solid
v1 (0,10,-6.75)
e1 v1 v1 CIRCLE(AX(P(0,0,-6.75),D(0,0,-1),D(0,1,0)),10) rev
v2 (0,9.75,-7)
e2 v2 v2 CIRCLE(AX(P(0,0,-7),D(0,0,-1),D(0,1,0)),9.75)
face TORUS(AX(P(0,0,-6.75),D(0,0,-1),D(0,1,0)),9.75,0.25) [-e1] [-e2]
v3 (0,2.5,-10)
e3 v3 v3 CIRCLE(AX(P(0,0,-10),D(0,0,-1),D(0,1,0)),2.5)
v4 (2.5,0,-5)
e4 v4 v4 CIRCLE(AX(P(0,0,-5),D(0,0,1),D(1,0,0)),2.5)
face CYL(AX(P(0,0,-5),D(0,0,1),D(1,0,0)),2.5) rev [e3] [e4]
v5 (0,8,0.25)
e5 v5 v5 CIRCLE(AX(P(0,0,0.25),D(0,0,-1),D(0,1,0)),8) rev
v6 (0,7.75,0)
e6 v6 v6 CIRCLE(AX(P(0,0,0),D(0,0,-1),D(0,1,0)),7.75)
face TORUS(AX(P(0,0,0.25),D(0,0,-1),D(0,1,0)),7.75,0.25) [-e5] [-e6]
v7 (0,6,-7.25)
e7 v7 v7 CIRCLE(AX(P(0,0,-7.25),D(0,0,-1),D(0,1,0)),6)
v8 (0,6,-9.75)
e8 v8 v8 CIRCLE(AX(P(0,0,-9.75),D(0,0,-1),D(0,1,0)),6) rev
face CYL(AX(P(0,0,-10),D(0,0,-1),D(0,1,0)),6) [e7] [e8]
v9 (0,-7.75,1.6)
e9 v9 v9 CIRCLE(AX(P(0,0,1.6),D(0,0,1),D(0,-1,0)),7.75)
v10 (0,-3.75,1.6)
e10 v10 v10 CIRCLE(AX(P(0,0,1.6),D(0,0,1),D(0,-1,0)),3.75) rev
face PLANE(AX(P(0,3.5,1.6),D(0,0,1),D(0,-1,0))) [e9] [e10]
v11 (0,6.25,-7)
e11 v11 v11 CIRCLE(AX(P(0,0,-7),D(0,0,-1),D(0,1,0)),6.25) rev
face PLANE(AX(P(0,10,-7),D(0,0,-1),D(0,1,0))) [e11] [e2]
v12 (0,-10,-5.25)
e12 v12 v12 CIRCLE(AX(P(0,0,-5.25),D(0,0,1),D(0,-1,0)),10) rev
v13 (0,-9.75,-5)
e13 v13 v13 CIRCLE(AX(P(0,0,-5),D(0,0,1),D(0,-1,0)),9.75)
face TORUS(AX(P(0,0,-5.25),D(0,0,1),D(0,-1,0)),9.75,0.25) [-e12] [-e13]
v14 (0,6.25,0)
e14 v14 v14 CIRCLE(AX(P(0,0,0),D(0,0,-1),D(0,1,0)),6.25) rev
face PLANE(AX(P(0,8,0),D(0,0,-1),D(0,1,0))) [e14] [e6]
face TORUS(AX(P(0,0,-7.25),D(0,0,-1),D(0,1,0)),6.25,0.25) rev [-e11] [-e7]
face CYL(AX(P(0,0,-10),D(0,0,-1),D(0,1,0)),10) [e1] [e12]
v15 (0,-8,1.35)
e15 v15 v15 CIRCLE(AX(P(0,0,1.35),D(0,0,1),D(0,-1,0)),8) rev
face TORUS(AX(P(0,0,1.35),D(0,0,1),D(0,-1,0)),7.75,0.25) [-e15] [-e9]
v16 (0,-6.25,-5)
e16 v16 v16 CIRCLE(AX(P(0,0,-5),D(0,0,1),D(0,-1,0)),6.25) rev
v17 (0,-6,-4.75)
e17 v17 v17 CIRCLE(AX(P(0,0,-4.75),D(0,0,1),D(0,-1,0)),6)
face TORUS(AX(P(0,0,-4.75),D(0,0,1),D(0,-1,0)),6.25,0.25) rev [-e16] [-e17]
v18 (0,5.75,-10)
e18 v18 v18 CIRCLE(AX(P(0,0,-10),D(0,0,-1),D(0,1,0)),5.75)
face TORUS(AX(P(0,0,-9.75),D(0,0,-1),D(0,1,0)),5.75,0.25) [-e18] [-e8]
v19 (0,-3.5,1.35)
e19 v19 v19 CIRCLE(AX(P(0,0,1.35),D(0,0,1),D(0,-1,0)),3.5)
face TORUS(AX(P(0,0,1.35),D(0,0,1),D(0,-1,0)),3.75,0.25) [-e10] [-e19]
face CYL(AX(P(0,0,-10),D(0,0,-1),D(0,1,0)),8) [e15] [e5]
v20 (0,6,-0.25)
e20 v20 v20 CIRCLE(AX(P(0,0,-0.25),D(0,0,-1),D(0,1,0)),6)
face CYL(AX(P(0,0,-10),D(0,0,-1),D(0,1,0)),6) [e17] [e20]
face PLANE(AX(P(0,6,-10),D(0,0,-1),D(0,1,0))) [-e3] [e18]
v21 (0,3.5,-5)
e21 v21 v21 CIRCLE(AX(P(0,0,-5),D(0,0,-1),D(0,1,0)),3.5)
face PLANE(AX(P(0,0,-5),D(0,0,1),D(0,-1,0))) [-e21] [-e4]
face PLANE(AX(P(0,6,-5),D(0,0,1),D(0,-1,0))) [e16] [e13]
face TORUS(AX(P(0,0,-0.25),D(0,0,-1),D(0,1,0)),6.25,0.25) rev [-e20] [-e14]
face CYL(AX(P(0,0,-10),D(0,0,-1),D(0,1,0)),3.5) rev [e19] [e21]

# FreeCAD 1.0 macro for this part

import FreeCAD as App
import Part
import Sketcher

V = App.Vector
Q = App.Units.Quantity


def edges_at(feature, points):
    """Names of the edges that pass closest to the given points."""
    edges = feature.Shape.Edges
    near = lambda p: min(range(len(edges)), key=lambda i: edges[i].distToShape(Part.Vertex(*p))[0])
    return sorted({f"Edge{near(p) + 1}" for p in points})


def add_polygon(sketch, points):
    """Adds a closed chain of lines whose ends are joined by coincident constraints."""
    first, n = sketch.GeometryCount, len(points)
    for a, b in zip(points, points[1:] + points[:1]):
        sketch.addGeometry(Part.LineSegment(App.Vector(*a, 0), App.Vector(*b, 0)), False)
    for i in range(n):
        sketch.addConstraint(Sketcher.Constraint("Coincident", first + i, 2, first + (i + 1) % n, 1))

doc = App.newDocument("Part")
params = doc.addObject("Spreadsheet::Sheet", "Params")
for row, (alias, value) in enumerate([
    ("sketch1_width", "2 mm"),
    ("sketch1_width2", "6 mm"),
    ("sketch1_width3", "4 mm"),
    ("sketch1_height", "5 mm"),
    ("sketch1_width4", "4.5 mm"),
    ("revolution_angle", "360 deg"),
    ("sketch2_diameter", "5 mm"),
    ("hole_diameter", "5 mm"),
    ("fillet_radius", "0.25 mm"),
], start=1):
    params.set(f"A{row}", alias)
    params.set(f"B{row}", "=" + value)
    params.setAlias(f"B{row}", alias)

body = doc.addObject("PartDesign::Body", "Body")

# Sketch on YZ plane
sketch1 = body.newObject("Sketcher::SketchObject", "Sketch")
sketch1.AttachmentSupport = (doc.getObject("YZ_Plane"), [""])
sketch1.MapMode = "FlatFace"
add_polygon(sketch1, [(6, 0), (8, 0), (8, 1.6), (3.5, 1.6), (3.5, -5), (0, -5), (0, -10), (6, -10), (6, -7), (10, -7), (10, -5), (6, -5)])  # lines 0-11
sketch1.addConstraint(Sketcher.Constraint("Horizontal", 0))
sketch1.addConstraint(Sketcher.Constraint("Vertical", 1))
sketch1.addConstraint(Sketcher.Constraint("Horizontal", 2))
sketch1.addConstraint(Sketcher.Constraint("Vertical", 3))
sketch1.addConstraint(Sketcher.Constraint("Horizontal", 4))
sketch1.addConstraint(Sketcher.Constraint("Vertical", 5))
sketch1.addConstraint(Sketcher.Constraint("Horizontal", 6))
sketch1.addConstraint(Sketcher.Constraint("Vertical", 7))
sketch1.addConstraint(Sketcher.Constraint("Horizontal", 8))
sketch1.addConstraint(Sketcher.Constraint("Vertical", 9))
sketch1.addConstraint(Sketcher.Constraint("Horizontal", 10))
sketch1.addConstraint(Sketcher.Constraint("Vertical", 11))
sketch1.addConstraint(Sketcher.Constraint("PointOnObject", 0, 2, -1))
sketch1.addConstraint(Sketcher.Constraint("PointOnObject", 4, 2, -2))
sketch1.addConstraint(Sketcher.Constraint("Horizontal", 4, 2, 9, 2))
sketch1.addConstraint(Sketcher.Constraint("Vertical", 7, 2, 10, 2))
sketch1.addConstraint(Sketcher.Constraint("Equal", 0, 9))
sketch1.addConstraint(Sketcher.Constraint("Equal", 5, 11))
sketch1.addConstraint(Sketcher.Constraint("DistanceX", 0, 1, 0, 2, Q("2 mm")))
sketch1.addConstraint(Sketcher.Constraint("DistanceX", 6, 1, 6, 2, Q("6 mm")))
sketch1.addConstraint(Sketcher.Constraint("DistanceX", 8, 1, 8, 2, Q("4 mm")))
sketch1.addConstraint(Sketcher.Constraint("DistanceY", 5, 2, 5, 1, Q("5 mm")))
sketch1.addConstraint(Sketcher.Constraint("DistanceX", 2, 2, 2, 1, Q("4.5 mm")))
sketch1.addConstraint(Sketcher.Constraint("DistanceY", 1, 1, 1, 2, Q("1.6 mm")))
sketch1.setExpression("Constraints[30]", "Params.sketch1_width")
sketch1.setExpression("Constraints[31]", "Params.sketch1_width2")
sketch1.setExpression("Constraints[32]", "Params.sketch1_width3")
sketch1.setExpression("Constraints[33]", "Params.sketch1_height")
sketch1.setExpression("Constraints[34]", "Params.sketch1_width4")
revolution = body.newObject("PartDesign::Revolution", "Revolution")
revolution.Profile = sketch1
revolution.ReferenceAxis = (sketch1, ["V_Axis"])
revolution.setExpression("Angle", "Params.revolution_angle")

# Sketch on XY plane
sketch2 = body.newObject("Sketcher::SketchObject", "Sketch001")
sketch2.AttachmentSupport = (doc.getObject("XY_Plane"), [""])
sketch2.MapMode = "FlatFace"
sketch2.AttachmentOffset = App.Placement(V(0, 0, -5), App.Rotation())
sketch2.addGeometry(Part.Circle(V(0, 0, 0), V(0, 0, 1), 2.5), False)
sketch2.addConstraint(Sketcher.Constraint("Coincident", 0, 3, -1, 1))
sketch2.addConstraint(Sketcher.Constraint("Diameter", 0, Q("5 mm")))
sketch2.setExpression("Constraints[1]", "Params.sketch2_diameter")
doc.recompute()
hole = body.newObject("PartDesign::Hole", "Hole")
hole.Profile = sketch2
hole.ThreadType = "None"
hole.setExpression("Diameter", "Params.hole_diameter")
hole.DepthType = "ThroughAll"
doc.recompute()

fillet = body.newObject("PartDesign::Fillet", "Fillet")
fillet.Base = (hole, edges_at(hole, [
    (0, -6, -10),
    (0, -6, -7),
    (0, -10, -7),
    (0, -10, -5),
    (0, -6, -5),
    (0, -6, 0),
    (0, -8, 0),
    (0, -8, 1.6),
    (0, -3.5, 1.6),
]))
fillet.setExpression("Radius", "Params.fillet_radius")

doc.recompute()
